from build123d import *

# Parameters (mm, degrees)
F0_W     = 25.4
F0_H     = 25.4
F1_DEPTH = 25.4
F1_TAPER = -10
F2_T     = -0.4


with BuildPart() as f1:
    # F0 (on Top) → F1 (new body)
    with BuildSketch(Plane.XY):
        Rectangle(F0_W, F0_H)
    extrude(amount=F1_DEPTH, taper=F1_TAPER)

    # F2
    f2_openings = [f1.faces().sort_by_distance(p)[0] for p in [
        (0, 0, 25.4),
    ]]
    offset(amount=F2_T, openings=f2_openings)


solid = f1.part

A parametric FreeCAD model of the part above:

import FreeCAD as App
import Part
import Sketcher
from FreeCAD import Vector


def faces_at(feature, points):
    """Names of the faces that lie closest to the given points."""
    faces = feature.Shape.Faces
    near = lambda p: min(range(len(faces)), key=lambda i: faces[i].distToShape(Part.Vertex(*p))[0])
    return sorted({f"Face{near(p) + 1}" for p in points})


def add_polygon(sketch, points):
    """Adds a closed chain of lines whose ends are joined by coincident constraints."""
    first, n = sketch.GeometryCount, len(points)
    for a, b in zip(points, points[1:] + points[:1]):
        sketch.addGeometry(Part.LineSegment(App.Vector(*a, 0), App.Vector(*b, 0)), False)
    for i in range(n):
        sketch.addConstraint(Sketcher.Constraint("Coincident", first + i, 2, first + (i + 1) % n, 1))

doc = App.newDocument("Part")
body = doc.addObject("PartDesign::Body", "Body")

sketch1 = body.newObject("Sketcher::SketchObject", "Sketch")
sketch1.AttachmentSupport = (doc.getObject("XY_Plane"), [""])
sketch1.MapMode = "FlatFace"
add_polygon(sketch1, [(-12.7, 12.7), (-12.7, -12.7), (12.7, -12.7), (12.7, 12.7)])
sketch1.addConstraint(Sketcher.Constraint("Vertical", 0))
sketch1.addConstraint(Sketcher.Constraint("Horizontal", 1))
sketch1.addConstraint(Sketcher.Constraint("Vertical", 2))
sketch1.addConstraint(Sketcher.Constraint("Horizontal", 3))
sketch1.addConstraint(Sketcher.Constraint("Symmetric", 0, 2, 2, 2, -1, 1))
sketch1.addConstraint(Sketcher.Constraint("Equal", 3, 0))
sketch1.addConstraint(Sketcher.Constraint("DistanceX", 1, 1, 1, 2, 25.4))
pad1 = body.newObject("PartDesign::Pad", "Pad")
pad1.Profile = sketch1
pad1.Length = 25.4
pad1.TaperAngle = 10
doc.recompute()

thickness = body.newObject("PartDesign::Thickness", "Thickness")
thickness.Base = (pad1, faces_at(pad1, [(0, 0, 25.4)]))
thickness.Value = 0.4
thickness.Reversed = True
thickness.Join = "Arc"

doc.recompute()
